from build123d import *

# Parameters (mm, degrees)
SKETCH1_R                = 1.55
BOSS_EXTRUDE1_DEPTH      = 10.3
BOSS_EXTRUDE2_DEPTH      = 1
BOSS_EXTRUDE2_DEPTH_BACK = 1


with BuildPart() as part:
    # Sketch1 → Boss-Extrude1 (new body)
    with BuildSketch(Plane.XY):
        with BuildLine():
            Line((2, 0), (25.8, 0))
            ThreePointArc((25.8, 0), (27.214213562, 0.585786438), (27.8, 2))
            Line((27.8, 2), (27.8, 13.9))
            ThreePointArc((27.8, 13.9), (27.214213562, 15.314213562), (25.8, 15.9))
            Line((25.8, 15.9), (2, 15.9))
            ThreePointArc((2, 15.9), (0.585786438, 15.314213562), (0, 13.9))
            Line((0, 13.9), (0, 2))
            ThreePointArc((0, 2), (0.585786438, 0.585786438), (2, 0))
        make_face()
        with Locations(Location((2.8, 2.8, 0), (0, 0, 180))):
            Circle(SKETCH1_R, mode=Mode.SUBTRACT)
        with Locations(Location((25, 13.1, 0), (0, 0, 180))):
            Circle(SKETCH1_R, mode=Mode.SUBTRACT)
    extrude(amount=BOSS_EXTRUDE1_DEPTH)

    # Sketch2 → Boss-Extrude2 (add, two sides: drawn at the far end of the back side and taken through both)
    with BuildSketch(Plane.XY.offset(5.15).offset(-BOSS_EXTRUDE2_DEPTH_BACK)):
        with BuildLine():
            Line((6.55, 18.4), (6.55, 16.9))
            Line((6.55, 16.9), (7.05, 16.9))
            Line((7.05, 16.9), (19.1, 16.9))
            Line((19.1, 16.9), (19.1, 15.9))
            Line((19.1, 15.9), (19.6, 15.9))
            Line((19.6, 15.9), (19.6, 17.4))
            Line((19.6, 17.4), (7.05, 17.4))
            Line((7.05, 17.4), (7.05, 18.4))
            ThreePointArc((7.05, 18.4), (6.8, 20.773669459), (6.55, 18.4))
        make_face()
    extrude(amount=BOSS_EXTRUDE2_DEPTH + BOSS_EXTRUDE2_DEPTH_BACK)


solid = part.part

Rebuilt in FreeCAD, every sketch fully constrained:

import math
import FreeCAD as App
import Part
import Sketcher
Q = App.Units.Quantity

doc = App.newDocument("Part")
body = doc.addObject("PartDesign::Body", "Body")

# Sketch on XY plane
sketch1 = body.newObject("Sketcher::SketchObject", "Sketch")
sketch1.AttachmentSupport = (doc.getObject("XY_Plane"), [""])
sketch1.MapMode = "FlatFace"
sketch1.addGeometry(Part.LineSegment(App.Vector(2, 0, 0), App.Vector(25.8, 0, 0)), False)
sketch1.addGeometry(Part.ArcOfCircle(Part.Circle(App.Vector(25.8, 2, 0), App.Vector(0, 0, 1), 2), math.radians(-90), math.radians(0)), False)
sketch1.addGeometry(Part.LineSegment(App.Vector(27.8, 2, 0), App.Vector(27.8, 13.9, 0)), False)
sketch1.addGeometry(Part.ArcOfCircle(Part.Circle(App.Vector(25.8, 13.9, 0), App.Vector(0, 0, 1), 2), math.radians(0), math.radians(90)), False)
sketch1.addGeometry(Part.LineSegment(App.Vector(25.8, 15.9, 0), App.Vector(2, 15.9, 0)), False)
sketch1.addGeometry(Part.ArcOfCircle(Part.Circle(App.Vector(2, 13.9, 0), App.Vector(0, 0, 1), 2), math.radians(90), math.radians(180)), False)
sketch1.addGeometry(Part.LineSegment(App.Vector(0, 13.9, 0), App.Vector(0, 2, 0)), False)
sketch1.addGeometry(Part.ArcOfCircle(Part.Circle(App.Vector(2, 2, 0), App.Vector(0, 0, 1), 2), math.radians(-180), math.radians(-90)), False)
sketch1.addGeometry(Part.Circle(App.Vector(2.8, 2.8, 0), App.Vector(0, 0, 1), 1.6), False)
sketch1.addGeometry(Part.Circle(App.Vector(25, 13.1, 0), App.Vector(0, 0, 1), 1.6), False)
sketch1.addConstraint(Sketcher.Constraint("Tangent", 0, 2, 1, 1))
sketch1.addConstraint(Sketcher.Constraint("Tangent", 1, 2, 2, 1))
sketch1.addConstraint(Sketcher.Constraint("Tangent", 2, 2, 3, 1))
sketch1.addConstraint(Sketcher.Constraint("Tangent", 3, 2, 4, 1))
sketch1.addConstraint(Sketcher.Constraint("Tangent", 4, 2, 5, 1))
sketch1.addConstraint(Sketcher.Constraint("Tangent", 5, 2, 6, 1))
sketch1.addConstraint(Sketcher.Constraint("Tangent", 6, 2, 7, 1))
sketch1.addConstraint(Sketcher.Constraint("Tangent", 7, 2, 0, 1))
sketch1.addConstraint(Sketcher.Constraint("Horizontal", 0))
sketch1.addConstraint(Sketcher.Constraint("Vertical", 2))
sketch1.addConstraint(Sketcher.Constraint("Horizontal", 4))
sketch1.addConstraint(Sketcher.Constraint("Vertical", 6))
sketch1.addConstraint(Sketcher.Constraint("Equal", 1, 3))
sketch1.addConstraint(Sketcher.Constraint("Equal", 3, 5))
sketch1.addConstraint(Sketcher.Constraint("Equal", 5, 7))
sketch1.addConstraint(Sketcher.Constraint("Equal", 8, 9))
sketch1.addConstraint(Sketcher.Constraint("PointOnObject", 0, 2, -1))
sketch1.addConstraint(Sketcher.Constraint("PointOnObject", 5, 2, -2))
sketch1.addConstraint(Sketcher.Constraint("Radius", 1, Q("2 mm")))
sketch1.addConstraint(Sketcher.Constraint("Diameter", 8, Q("3.1 mm")))
sketch1.addConstraint(Sketcher.Constraint("DistanceX", 0, 1, 0, 2, Q("23.8 mm")))
sketch1.addConstraint(Sketcher.Constraint("DistanceY", 2, 1, 2, 2, Q("11.9 mm")))
sketch1.addConstraint(Sketcher.Constraint("DistanceX", -1, 1, 9, 3, Q("25 mm")))
sketch1.addConstraint(Sketcher.Constraint("DistanceX", 8, 3, 1, 3, Q("23 mm")))
sketch1.addConstraint(Sketcher.Constraint("DistanceY", -1, 1, 8, 3, Q("2.8 mm")))
sketch1.addConstraint(Sketcher.Constraint("DistanceY", -1, 1, 9, 3, Q("13.1 mm")))
pad1 = body.newObject("PartDesign::Pad", "Pad")
pad1.Profile = sketch1
pad1.Length = 10.3

# Sketch on XY plane
sketch2 = body.newObject("Sketcher::SketchObject", "Sketch001")
sketch2.AttachmentSupport = (doc.getObject("XY_Plane"), [""])
sketch2.MapMode = "FlatFace"
sketch2.AttachmentOffset = App.Placement(App.Vector(0, 0, 5.15), App.Rotation())
sketch2.addGeometry(Part.LineSegment(App.Vector(6.5, 18.4, 0), App.Vector(6.5, 16.9, 0)), False)
sketch2.addGeometry(Part.LineSegment(App.Vector(6.5, 16.9, 0), App.Vector(19.1, 16.9, 0)), False)
sketch2.addGeometry(Part.LineSegment(App.Vector(19.1, 16.9, 0), App.Vector(19.1, 15.9, 0)), False)
sketch2.addGeometry(Part.LineSegment(App.Vector(19.1, 15.9, 0), App.Vector(19.6, 15.9, 0)), False)
sketch2.addGeometry(Part.LineSegment(App.Vector(19.6, 15.9, 0), App.Vector(19.6, 17.4, 0)), False)
sketch2.addGeometry(Part.LineSegment(App.Vector(19.6, 17.4, 0), App.Vector(7, 17.4, 0)), False)
sketch2.addGeometry(Part.LineSegment(App.Vector(7, 17.4, 0), App.Vector(7, 18.4, 0)), False)
sketch2.addGeometry(Part.ArcOfCircle(Part.Circle(App.Vector(6.8, 19.6, 0), App.Vector(0, 0, 1), 1.2), math.radians(-78), math.radians(258)), False)
sketch2.addConstraint(Sketcher.Constraint("Coincident", 0, 2, 1, 1))
sketch2.addConstraint(Sketcher.Constraint("Coincident", 1, 2, 2, 1))
sketch2.addConstraint(Sketcher.Constraint("Coincident", 2, 2, 3, 1))
sketch2.addConstraint(Sketcher.Constraint("Coincident", 3, 2, 4, 1))
sketch2.addConstraint(Sketcher.Constraint("Coincident", 4, 2, 5, 1))
sketch2.addConstraint(Sketcher.Constraint("Coincident", 5, 2, 6, 1))
sketch2.addConstraint(Sketcher.Constraint("Coincident", 6, 2, 7, 1))
sketch2.addConstraint(Sketcher.Constraint("Coincident", 7, 2, 0, 1))
sketch2.addConstraint(Sketcher.Constraint("Vertical", 0))
sketch2.addConstraint(Sketcher.Constraint("Horizontal", 1))
sketch2.addConstraint(Sketcher.Constraint("Vertical", 2))
sketch2.addConstraint(Sketcher.Constraint("Horizontal", 3))
sketch2.addConstraint(Sketcher.Constraint("Vertical", 4))
sketch2.addConstraint(Sketcher.Constraint("Horizontal", 5))
sketch2.addConstraint(Sketcher.Constraint("Vertical", 6))
sketch2.addConstraint(Sketcher.Constraint("Horizontal", 6, 2, 7, 2))
sketch2.addConstraint(Sketcher.Constraint("Equal", 1, 5))
sketch2.addConstraint(Sketcher.Constraint("Equal", 0, 4))
sketch2.addConstraint(Sketcher.Constraint("Radius", 7, Q("1.2 mm")))
sketch2.addConstraint(Sketcher.Constraint("DistanceY", 2, 2, 2, 1, Q("1 mm")))
sketch2.addConstraint(Sketcher.Constraint("DistanceX", 3, 1, 3, 2, Q("0.5 mm")))
sketch2.addConstraint(Sketcher.Constraint("DistanceY", 0, 2, 0, 1, Q("1.5 mm")))
sketch2.addConstraint(Sketcher.Constraint("DistanceX", 1, 1, 1, 2, Q("12.55 mm")))
sketch2.addConstraint(Sketcher.Constraint("DistanceX", -1, 1, 7, 3, Q("6.8 mm")))
sketch2.addConstraint(Sketcher.Constraint("DistanceY", -1, 1, 0, 2, Q("16.9 mm")))
pad2 = body.newObject("PartDesign::Pad", "Pad001")
pad2.Profile = sketch2
pad2.Type = "TwoLengths"
pad2.Length = 1
pad2.Length2 = 1

doc.recompute()
